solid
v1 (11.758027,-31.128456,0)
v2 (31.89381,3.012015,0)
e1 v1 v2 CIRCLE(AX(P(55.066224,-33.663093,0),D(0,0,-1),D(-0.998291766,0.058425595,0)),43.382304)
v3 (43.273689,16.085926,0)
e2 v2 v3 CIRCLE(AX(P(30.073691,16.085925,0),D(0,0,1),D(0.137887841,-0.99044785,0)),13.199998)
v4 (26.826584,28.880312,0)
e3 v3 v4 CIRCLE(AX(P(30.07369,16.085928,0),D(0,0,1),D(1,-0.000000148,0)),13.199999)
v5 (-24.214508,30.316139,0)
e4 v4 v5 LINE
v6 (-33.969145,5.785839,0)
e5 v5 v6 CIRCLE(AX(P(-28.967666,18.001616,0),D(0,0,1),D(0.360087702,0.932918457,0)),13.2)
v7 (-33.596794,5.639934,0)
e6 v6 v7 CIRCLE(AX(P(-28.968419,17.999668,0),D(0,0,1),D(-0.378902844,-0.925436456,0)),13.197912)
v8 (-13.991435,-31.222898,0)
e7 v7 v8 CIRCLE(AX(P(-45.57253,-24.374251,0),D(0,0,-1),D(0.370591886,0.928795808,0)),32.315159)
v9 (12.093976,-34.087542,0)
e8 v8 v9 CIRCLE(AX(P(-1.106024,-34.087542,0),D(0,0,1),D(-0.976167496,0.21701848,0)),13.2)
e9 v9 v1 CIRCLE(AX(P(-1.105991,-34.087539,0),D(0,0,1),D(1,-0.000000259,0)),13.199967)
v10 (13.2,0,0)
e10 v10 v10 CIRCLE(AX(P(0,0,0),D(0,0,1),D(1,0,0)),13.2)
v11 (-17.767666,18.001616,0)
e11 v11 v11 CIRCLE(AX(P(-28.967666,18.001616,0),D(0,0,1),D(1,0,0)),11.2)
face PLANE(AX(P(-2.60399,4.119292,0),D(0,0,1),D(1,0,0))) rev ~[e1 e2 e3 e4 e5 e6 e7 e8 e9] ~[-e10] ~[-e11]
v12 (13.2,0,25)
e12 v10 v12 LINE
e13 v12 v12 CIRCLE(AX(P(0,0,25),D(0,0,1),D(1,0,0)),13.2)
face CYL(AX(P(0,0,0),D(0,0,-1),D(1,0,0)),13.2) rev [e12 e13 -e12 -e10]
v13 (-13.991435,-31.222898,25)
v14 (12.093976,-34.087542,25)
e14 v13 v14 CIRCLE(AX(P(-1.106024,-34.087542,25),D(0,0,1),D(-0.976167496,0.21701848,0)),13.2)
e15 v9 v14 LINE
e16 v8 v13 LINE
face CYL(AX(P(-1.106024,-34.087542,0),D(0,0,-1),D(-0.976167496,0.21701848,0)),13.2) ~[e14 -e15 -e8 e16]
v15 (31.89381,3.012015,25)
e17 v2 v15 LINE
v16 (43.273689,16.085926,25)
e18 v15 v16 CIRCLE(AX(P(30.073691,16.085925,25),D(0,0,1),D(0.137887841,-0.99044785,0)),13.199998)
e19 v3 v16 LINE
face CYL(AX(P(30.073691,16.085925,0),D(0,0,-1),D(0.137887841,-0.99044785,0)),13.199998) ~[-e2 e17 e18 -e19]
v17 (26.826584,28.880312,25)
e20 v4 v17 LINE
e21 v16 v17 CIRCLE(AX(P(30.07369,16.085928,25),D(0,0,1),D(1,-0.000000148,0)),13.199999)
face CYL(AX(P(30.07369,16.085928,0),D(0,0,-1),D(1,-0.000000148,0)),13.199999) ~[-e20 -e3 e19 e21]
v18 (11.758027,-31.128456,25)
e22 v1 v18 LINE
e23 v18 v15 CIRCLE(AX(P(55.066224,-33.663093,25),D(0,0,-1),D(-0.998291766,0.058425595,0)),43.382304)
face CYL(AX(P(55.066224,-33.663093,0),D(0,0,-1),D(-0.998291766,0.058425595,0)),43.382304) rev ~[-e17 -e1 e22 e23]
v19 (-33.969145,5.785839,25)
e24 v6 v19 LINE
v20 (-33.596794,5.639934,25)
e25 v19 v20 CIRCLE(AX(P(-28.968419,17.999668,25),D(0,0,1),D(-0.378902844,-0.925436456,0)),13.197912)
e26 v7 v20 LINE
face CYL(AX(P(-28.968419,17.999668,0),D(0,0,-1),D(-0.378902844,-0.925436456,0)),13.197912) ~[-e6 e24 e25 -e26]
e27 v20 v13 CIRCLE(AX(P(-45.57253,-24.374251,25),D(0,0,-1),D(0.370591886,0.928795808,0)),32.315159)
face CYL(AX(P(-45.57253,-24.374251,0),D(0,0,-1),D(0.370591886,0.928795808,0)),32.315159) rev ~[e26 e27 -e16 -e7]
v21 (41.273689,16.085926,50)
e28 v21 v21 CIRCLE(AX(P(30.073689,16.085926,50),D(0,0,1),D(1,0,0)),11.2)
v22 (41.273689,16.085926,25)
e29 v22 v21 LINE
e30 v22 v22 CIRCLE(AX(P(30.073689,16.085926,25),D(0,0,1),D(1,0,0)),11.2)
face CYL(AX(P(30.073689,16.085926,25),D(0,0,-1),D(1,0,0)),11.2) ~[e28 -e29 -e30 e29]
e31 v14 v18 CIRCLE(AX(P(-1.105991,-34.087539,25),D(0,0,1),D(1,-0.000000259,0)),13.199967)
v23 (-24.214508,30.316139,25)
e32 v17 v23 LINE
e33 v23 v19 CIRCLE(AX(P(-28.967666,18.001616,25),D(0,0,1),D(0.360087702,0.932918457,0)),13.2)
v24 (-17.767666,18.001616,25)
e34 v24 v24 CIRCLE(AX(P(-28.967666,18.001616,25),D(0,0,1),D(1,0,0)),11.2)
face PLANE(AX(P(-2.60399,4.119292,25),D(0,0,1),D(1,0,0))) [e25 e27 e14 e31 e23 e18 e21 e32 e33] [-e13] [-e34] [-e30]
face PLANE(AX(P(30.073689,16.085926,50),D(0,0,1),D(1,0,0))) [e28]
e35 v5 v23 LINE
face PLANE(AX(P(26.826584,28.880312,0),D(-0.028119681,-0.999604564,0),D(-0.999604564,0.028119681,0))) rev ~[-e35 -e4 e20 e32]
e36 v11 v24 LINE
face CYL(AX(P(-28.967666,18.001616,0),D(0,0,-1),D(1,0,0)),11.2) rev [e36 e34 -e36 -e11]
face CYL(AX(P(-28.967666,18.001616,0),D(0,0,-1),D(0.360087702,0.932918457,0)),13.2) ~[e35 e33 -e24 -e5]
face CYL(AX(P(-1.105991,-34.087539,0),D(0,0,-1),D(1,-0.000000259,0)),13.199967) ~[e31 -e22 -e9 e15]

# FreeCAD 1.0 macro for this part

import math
import FreeCAD as App
import Part
import Sketcher
from FreeCAD import Vector

doc = App.newDocument("Part")
params = doc.addObject("Spreadsheet::Sheet", "Params")
for row, (alias, value) in enumerate([
    ("sketch1_diameter", "26.4 mm"),
    ("sketch1_diameter2", "22.4 mm"),
    ("pad1_length", "25 mm"),
    ("sketch2_diameter", "22.4 mm"),
    ("pad2_length", "25 mm"),
], start=1):
    params.set(f"A{row}", alias)
    params.set(f"B{row}", "=" + value)
    params.setAlias(f"B{row}", alias)

body = doc.addObject("PartDesign::Body", "Body")

sketch1 = body.newObject("Sketcher::SketchObject", "Sketch")
sketch1.AttachmentSupport = (doc.getObject("XY_Plane"), [""])
sketch1.MapMode = "FlatFace"
sketch1.addGeometry(Part.LineSegment(Vector(26.826584, 28.880312, 0), Vector(-24.214508, 30.316139, 0)), False)
sketch1.addGeometry(Part.ArcOfCircle(Part.Circle(Vector(-28.967666, 18.001616, 0), Vector(0, 0, 1), 13.2), math.radians(68.894418), math.radians(247.73444)), False)
sketch1.addGeometry(Part.ArcOfCircle(Part.Circle(Vector(-28.968419, 17.999668, 0), Vector(0, 0, 1), 13.197912), math.radians(-112.265739), math.radians(-110.529523)), False)
sketch1.addGeometry(Part.ArcOfCircle(Part.Circle(Vector(-45.57253, -24.374251, 0), Vector(0, 0, 1), 32.315159), math.radians(-12.235653), math.radians(68.247875)), False)
sketch1.addGeometry(Part.ArcOfCircle(Part.Circle(Vector(-1.106024, -34.087542, 0), Vector(0, 0, 1), 13.2), math.radians(167.466026), math.radians(360)), False)
sketch1.addGeometry(Part.ArcOfCircle(Part.Circle(Vector(-1.105991, -34.087539, 0), Vector(0, 0, 1), 13.199967), math.radians(-0.000015), math.radians(12.954281)), False)
sketch1.addGeometry(Part.ArcOfCircle(Part.Circle(Vector(55.066224, -33.663093, 0), Vector(0, 0, 1), 43.382304), math.radians(122.285904), math.radians(176.650553)), False)
sketch1.addGeometry(Part.ArcOfCircle(Part.Circle(Vector(30.073691, 16.085925, 0), Vector(0, 0, 1), 13.199998), math.radians(-82.074357), math.radians(0.000005)), False)
sketch1.addGeometry(Part.ArcOfCircle(Part.Circle(Vector(30.07369, 16.085928, 0), Vector(0, 0, 1), 13.199999), math.radians(-0.000008), math.radians(104.240521)), False)
sketch1.addGeometry(Part.Circle(Vector(0, 0, 0), Vector(0, 0, 1), 13.2), False)
sketch1.addGeometry(Part.Circle(Vector(-28.967666, 18.001616, 0), Vector(0, 0, 1), 11.2), False)
sketch1.addConstraint(Sketcher.Constraint("Coincident", 0, 2, 1, 1))
sketch1.addConstraint(Sketcher.Constraint("Coincident", 1, 2, 2, 1))
sketch1.addConstraint(Sketcher.Constraint("Coincident", 2, 2, 3, 2))
sketch1.addConstraint(Sketcher.Constraint("Coincident", 3, 1, 4, 1))
sketch1.addConstraint(Sketcher.Constraint("Tangent", 4, 2, 5, 1))
sketch1.addConstraint(Sketcher.Constraint("Coincident", 5, 2, 6, 2))
sketch1.addConstraint(Sketcher.Constraint("Coincident", 6, 1, 7, 1))
sketch1.addConstraint(Sketcher.Constraint("Tangent", 7, 2, 8, 1))
sketch1.addConstraint(Sketcher.Constraint("Coincident", 8, 2, 0, 1))
sketch1.addConstraint(Sketcher.Constraint("Coincident", 9, 3, -1, 1))
sketch1.addConstraint(Sketcher.Constraint("Coincident", 10, 3, 1, 3))
sketch1.addConstraint(Sketcher.Constraint("Equal", 1, 4))
sketch1.addConstraint(Sketcher.Constraint("Equal", 4, 7))
sketch1.addConstraint(Sketcher.Constraint("Equal", 7, 8))
sketch1.addConstraint(Sketcher.Constraint("Equal", 8, 9))
sketch1.addConstraint(Sketcher.Constraint("Horizontal", 8, 3, 7, 2))
sketch1.addConstraint(Sketcher.Constraint("Diameter", 9, 26.4))
sketch1.addConstraint(Sketcher.Constraint("Diameter", 10, 22.4))
sketch1.addConstraint(Sketcher.Constraint("Radius", 3, 32.315159))
sketch1.addConstraint(Sketcher.Constraint("Radius", 2, 13.197912))
sketch1.addConstraint(Sketcher.Constraint("Radius", 5, 13.199967))
sketch1.addConstraint(Sketcher.Constraint("Radius", 6, 43.382304))
sketch1.addConstraint(Sketcher.Constraint("DistanceY", 3, 1, -1, 1, 31.222898))
sketch1.addConstraint(Sketcher.Constraint("DistanceX", 0, 2, 8, 3, 54.288198))
sketch1.addConstraint(Sketcher.Constraint("DistanceY", 1, 2, 0, 2, 24.5303))
sketch1.addConstraint(Sketcher.Constraint("DistanceX", 2, 3, -1, 1, 28.968419))
sketch1.addConstraint(Sketcher.Constraint("DistanceX", 3, 3, -1, 1, 45.57253))
sketch1.addConstraint(Sketcher.Constraint("DistanceY", 3, 3, -1, 1, 24.374251))
sketch1.addConstraint(Sketcher.Constraint("DistanceY", 4, 3, -1, 1, 34.087542))
sketch1.addConstraint(Sketcher.Constraint("DistanceX", -1, 1, 7, 3, 30.073691))
sketch1.addConstraint(Sketcher.Constraint("DistanceY", -1, 1, 0, 2, 30.316139))
sketch1.addConstraint(Sketcher.Constraint("DistanceX", -1, 1, 6, 1, 31.89381))
sketch1.addConstraint(Sketcher.Constraint("DistanceY", 3, 3, 2, 3, 42.373919))
sketch1.addConstraint(Sketcher.Constraint("DistanceX", 4, 3, 6, 3, 56.172248))
sketch1.addConstraint(Sketcher.Constraint("DistanceY", 4, 3, 6, 3, 0.424449))
sketch1.addConstraint(Sketcher.Constraint("DistanceY", 4, 2, 6, 3, 0.424449))
sketch1.addConstraint(Sketcher.Constraint("Distance", 0, 51.061283))
sketch1.setExpression("Constraints[16]", "Params.sketch1_diameter")
sketch1.setExpression("Constraints[17]", "Params.sketch1_diameter2")
pad1 = body.newObject("PartDesign::Pad", "Pad")
pad1.Profile = sketch1
pad1.setExpression("Length", "Params.pad1_length")

sketch2 = body.newObject("Sketcher::SketchObject", "Sketch001")
sketch2.AttachmentSupport = (doc.getObject("XY_Plane"), [""])
sketch2.MapMode = "FlatFace"
sketch2.AttachmentOffset = App.Placement(Vector(0, 0, 25), App.Rotation())
sketch2.addGeometry(Part.Circle(Vector(30, 16, 0), Vector(0, 0, 1), 11), False)
sketch2.addConstraint(Sketcher.Constraint("Diameter", 0, 22.4))
sketch2.addConstraint(Sketcher.Constraint("DistanceX", -1, 1, 0, 3, 30.073689))
sketch2.addConstraint(Sketcher.Constraint("DistanceY", -1, 1, 0, 3, 16.085926))
sketch2.setExpression("Constraints[0]", "Params.sketch2_diameter")
pad2 = body.newObject("PartDesign::Pad", "Pad001")
pad2.Profile = sketch2
pad2.setExpression("Length", "Params.pad2_length")

doc.recompute()
